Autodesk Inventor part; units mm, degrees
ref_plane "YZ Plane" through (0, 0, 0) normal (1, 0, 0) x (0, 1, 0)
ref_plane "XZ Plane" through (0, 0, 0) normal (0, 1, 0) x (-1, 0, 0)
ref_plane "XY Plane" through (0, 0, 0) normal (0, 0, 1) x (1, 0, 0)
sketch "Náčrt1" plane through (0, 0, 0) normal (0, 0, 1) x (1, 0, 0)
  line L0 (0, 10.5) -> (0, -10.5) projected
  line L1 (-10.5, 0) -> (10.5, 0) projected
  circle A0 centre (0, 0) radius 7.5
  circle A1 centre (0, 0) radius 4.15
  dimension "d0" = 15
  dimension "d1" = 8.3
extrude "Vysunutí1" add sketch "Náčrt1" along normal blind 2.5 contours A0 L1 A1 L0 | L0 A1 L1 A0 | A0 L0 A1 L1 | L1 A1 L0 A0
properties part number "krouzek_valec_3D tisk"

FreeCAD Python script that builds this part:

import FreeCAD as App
import Part
import Sketcher

V = App.Vector
Q = App.Units.Quantity

doc = App.newDocument("Part")
body = doc.addObject("PartDesign::Body", "Body")

# Sketch on XY plane
sketch1 = doc.addObject("Sketcher::SketchObject", "Sketch")
body.addObject(sketch1)
sketch1.AttachmentSupport = (doc.XY_Plane, [""])
sketch1.MapMode = "FlatFace"
sketch1.addGeometry([
    Part.Circle(V(0, 0, 0), V(0, 0, 1), 7.5),
    Part.Circle(V(0, 0, 0), V(0, 0, 1), 4.2),
], False)
sketch1.addConstraint([
    Sketcher.Constraint("Coincident", 0, 3, -1, 1),
    Sketcher.Constraint("Coincident", 1, 3, -1, 1),
    Sketcher.Constraint("Diameter", 0, Q("15 mm")),
    Sketcher.Constraint("Diameter", 1, Q("8.3 mm")),
])
pad1 = doc.addObject("PartDesign::Pad", "Pad")
body.addObject(pad1)
pad1.Profile = sketch1
pad1.Length = 2.5

doc.recompute()
